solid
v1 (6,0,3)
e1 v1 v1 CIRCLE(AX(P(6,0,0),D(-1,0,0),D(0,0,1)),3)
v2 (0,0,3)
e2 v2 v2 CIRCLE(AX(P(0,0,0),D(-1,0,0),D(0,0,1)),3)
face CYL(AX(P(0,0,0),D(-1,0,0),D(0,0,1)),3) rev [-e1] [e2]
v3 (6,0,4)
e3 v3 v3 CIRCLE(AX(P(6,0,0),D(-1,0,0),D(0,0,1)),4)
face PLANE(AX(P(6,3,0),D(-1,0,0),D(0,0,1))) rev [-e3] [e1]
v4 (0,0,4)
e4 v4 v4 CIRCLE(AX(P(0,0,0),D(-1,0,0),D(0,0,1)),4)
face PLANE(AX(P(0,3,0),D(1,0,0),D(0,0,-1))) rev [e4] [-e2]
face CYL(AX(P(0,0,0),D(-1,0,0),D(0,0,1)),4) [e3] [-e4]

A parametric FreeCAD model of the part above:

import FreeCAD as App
import Part
import Sketcher

V = App.Vector
Q = App.Units.Quantity


def add_polygon(sketch, points):
    """Adds a closed chain of lines whose ends are joined by coincident constraints."""
    first, n = sketch.GeometryCount, len(points)
    for a, b in zip(points, points[1:] + points[:1]):
        sketch.addGeometry(Part.LineSegment(App.Vector(*a, 0), App.Vector(*b, 0)), False)
    for i in range(n):
        sketch.addConstraint(Sketcher.Constraint("Coincident", first + i, 2, first + (i + 1) % n, 1))

doc = App.newDocument("Part")
body = doc.addObject("PartDesign::Body", "Body")

sketch1 = body.newObject("Sketcher::SketchObject", "Sketch")
sketch1.AttachmentSupport = (doc.getObject("XY_Plane"), [""])
sketch1.MapMode = "FlatFace"
add_polygon(sketch1, [(0, 4), (0, 3), (6, 3), (6, 4)])
sketch1.addConstraint(Sketcher.Constraint("Vertical", 0))
sketch1.addConstraint(Sketcher.Constraint("Horizontal", 1))
sketch1.addConstraint(Sketcher.Constraint("Vertical", 2))
sketch1.addConstraint(Sketcher.Constraint("Horizontal", 3))
sketch1.addConstraint(Sketcher.Constraint("PointOnObject", 0, 2, -2))
sketch1.addConstraint(Sketcher.Constraint("DistanceX", 1, 1, 1, 2, Q("6 mm")))
sketch1.addConstraint(Sketcher.Constraint("DistanceY", 0, 2, 0, 1, Q("1 mm")))
sketch1.addConstraint(Sketcher.Constraint("DistanceY", -1, 1, 0, 2, Q("3 mm")))
revolution = body.newObject("PartDesign::Revolution", "Revolution")
revolution.Profile = sketch1
revolution.ReferenceAxis = (sketch1, ["H_Axis"])
revolution.Angle = 360

doc.recompute()
